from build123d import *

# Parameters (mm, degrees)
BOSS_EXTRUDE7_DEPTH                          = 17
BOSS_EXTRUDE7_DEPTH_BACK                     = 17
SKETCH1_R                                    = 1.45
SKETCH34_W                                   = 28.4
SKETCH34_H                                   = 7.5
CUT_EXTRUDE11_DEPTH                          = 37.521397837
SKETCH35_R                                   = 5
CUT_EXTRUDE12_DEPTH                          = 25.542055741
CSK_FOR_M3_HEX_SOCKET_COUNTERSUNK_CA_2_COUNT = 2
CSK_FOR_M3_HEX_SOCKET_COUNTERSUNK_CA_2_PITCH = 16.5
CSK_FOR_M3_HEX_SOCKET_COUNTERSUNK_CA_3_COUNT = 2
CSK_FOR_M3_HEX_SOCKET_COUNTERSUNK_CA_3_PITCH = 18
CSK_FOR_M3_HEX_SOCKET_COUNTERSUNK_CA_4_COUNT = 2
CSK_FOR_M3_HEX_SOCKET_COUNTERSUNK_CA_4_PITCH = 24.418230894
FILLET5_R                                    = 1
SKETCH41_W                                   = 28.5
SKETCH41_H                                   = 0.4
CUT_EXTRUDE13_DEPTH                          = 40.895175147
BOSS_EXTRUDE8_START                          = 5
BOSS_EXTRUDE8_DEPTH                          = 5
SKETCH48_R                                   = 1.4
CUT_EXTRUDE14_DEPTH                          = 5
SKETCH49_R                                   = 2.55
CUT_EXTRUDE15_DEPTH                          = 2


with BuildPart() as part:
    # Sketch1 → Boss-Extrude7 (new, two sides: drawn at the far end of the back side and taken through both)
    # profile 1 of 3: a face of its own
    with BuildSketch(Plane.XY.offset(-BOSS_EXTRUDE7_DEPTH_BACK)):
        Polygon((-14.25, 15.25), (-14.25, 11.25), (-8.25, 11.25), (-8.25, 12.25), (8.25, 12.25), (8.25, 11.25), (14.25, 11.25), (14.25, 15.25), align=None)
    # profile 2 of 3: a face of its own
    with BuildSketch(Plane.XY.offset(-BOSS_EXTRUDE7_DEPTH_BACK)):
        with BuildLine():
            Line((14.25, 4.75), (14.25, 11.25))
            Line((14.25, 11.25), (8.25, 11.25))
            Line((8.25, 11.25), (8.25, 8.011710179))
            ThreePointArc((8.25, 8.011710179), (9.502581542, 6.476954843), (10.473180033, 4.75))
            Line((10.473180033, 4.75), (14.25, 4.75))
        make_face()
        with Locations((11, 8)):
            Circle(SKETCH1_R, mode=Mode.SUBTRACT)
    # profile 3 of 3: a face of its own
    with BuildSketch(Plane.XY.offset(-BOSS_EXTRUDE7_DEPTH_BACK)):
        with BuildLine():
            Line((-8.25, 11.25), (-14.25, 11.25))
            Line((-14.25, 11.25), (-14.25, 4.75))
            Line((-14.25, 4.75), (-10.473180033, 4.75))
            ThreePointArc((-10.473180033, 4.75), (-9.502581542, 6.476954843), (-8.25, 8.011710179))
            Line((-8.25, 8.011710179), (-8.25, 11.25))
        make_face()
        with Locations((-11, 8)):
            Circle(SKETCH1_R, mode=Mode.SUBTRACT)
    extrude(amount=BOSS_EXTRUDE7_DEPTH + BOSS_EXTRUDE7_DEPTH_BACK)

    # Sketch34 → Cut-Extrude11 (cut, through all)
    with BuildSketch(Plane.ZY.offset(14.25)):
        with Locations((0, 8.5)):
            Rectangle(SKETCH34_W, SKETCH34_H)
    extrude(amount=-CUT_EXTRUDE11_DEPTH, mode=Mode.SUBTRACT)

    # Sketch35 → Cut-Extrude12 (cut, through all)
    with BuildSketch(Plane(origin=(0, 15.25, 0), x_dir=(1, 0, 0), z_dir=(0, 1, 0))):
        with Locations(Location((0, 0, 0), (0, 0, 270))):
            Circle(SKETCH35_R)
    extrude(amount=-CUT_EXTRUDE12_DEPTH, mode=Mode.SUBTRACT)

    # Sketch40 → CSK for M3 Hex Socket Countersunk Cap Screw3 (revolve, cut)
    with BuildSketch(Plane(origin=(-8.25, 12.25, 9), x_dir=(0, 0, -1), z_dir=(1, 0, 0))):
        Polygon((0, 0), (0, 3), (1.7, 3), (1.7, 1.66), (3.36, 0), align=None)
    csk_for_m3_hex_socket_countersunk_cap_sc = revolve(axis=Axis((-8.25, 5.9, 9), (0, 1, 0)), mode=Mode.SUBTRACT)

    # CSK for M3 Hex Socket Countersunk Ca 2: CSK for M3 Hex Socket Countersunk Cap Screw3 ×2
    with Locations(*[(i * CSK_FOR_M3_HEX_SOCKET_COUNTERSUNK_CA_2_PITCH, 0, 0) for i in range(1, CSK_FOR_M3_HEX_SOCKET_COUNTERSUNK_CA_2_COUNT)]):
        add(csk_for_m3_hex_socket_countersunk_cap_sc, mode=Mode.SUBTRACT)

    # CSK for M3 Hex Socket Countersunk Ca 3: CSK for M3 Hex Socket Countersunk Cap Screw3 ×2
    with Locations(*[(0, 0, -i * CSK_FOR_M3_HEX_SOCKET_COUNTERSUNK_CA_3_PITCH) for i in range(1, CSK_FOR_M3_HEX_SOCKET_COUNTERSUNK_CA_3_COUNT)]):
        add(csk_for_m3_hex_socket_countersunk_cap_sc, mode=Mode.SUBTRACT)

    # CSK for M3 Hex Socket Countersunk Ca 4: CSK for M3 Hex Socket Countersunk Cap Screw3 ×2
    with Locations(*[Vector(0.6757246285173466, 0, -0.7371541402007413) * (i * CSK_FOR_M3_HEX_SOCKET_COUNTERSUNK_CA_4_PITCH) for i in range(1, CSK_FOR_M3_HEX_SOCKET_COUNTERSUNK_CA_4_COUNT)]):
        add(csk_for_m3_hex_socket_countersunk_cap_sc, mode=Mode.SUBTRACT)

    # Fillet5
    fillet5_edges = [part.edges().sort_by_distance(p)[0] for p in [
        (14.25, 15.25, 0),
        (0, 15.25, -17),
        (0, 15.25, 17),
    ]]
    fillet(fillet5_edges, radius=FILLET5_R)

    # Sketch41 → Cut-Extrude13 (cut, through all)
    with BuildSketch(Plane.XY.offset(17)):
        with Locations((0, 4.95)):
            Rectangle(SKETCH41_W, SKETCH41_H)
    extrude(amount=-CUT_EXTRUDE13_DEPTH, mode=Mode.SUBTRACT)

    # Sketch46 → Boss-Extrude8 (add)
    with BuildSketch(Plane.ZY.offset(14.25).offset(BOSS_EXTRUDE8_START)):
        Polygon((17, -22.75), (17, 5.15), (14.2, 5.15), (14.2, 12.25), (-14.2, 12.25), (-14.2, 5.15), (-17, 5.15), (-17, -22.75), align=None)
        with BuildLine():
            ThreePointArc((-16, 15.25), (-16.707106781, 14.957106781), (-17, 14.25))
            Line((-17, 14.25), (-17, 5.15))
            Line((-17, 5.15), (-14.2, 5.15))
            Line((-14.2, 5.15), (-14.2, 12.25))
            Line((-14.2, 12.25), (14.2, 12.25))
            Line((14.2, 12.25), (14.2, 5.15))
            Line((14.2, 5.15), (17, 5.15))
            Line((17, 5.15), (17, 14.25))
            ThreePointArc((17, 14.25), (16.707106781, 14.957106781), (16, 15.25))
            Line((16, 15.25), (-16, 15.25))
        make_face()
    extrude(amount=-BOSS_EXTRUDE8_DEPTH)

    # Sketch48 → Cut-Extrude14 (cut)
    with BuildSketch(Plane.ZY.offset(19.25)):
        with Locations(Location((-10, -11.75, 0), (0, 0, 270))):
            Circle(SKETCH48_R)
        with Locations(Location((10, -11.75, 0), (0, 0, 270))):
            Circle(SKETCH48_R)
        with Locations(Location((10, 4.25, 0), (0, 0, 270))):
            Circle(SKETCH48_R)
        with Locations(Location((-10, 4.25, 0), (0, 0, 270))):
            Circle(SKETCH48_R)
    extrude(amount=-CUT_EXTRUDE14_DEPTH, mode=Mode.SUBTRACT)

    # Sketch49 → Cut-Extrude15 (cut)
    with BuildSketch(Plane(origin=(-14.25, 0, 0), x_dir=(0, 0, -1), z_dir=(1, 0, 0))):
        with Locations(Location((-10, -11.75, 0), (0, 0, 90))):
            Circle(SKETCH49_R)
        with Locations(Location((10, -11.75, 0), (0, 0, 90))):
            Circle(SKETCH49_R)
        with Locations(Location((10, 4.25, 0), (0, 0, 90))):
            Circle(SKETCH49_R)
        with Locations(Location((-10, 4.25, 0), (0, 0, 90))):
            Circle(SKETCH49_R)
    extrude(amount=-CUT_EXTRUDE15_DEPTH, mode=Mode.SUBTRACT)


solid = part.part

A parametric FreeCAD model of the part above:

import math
import FreeCAD as App
import Part
import Sketcher

V = App.Vector
Q = App.Units.Quantity


def edges_at(feature, points):
    """Names of the edges that pass closest to the given points."""
    edges = feature.Shape.Edges
    near = lambda p: min(range(len(edges)), key=lambda i: edges[i].distToShape(Part.Vertex(*p))[0])
    return sorted({f"Edge{near(p) + 1}" for p in points})


def add_polygon(sketch, points):
    """Adds a closed chain of lines whose ends are joined by coincident constraints."""
    first, n = sketch.GeometryCount, len(points)
    for a, b in zip(points, points[1:] + points[:1]):
        sketch.addGeometry(Part.LineSegment(App.Vector(*a, 0), App.Vector(*b, 0)), False)
    for i in range(n):
        sketch.addConstraint(Sketcher.Constraint("Coincident", first + i, 2, first + (i + 1) % n, 1))

doc = App.newDocument("Part")
params = doc.addObject("Spreadsheet::Sheet", "Params")
for row, (alias, value) in enumerate([
    ("sketch1_diameter", "2.9 mm"),
    ("sketch1_radius", "11.5 mm"),
    ("sketch1_width", "16.5 mm"),
    ("sketch1_width2", "28.5 mm"),
    ("sketch1_height", "10.5 mm"),
    ("pad1_length", "17 mm"),
    ("pad1_length2", "17 mm"),
    ("sketch2_width", "7.5 mm"),
    ("sketch2_height", "28.4 mm"),
    ("sketch3_diameter", "10 mm"),
    ("sketch4_width", "3 mm"),
    ("sketch4_height", "1.7 mm"),
    ("sketch4_width2", "1.34 mm"),
    ("groove_angle", "360 deg"),
    ("linearpattern_pitch", "16.5 mm"),
    ("linearpattern2_pitch", "18 mm"),
    ("linearpattern3_pitch", "24.418231 mm"),
    ("fillet_radius", "1 mm"),
    ("sketch5_width", "28.5 mm"),
    ("sketch5_height", "0.4 mm"),
    ("sketch6_radius", "1 mm"),
    ("sketch6_width", "37 mm"),
    ("sketch6_height", "32 mm"),
    ("pad2_length", "5 mm"),
    ("sketch7_diameter", "2.8 mm"),
    ("pocket4_length", "5 mm"),
    ("sketch8_diameter", "5.1 mm"),
    ("pocket5_length", "2 mm"),
], start=1):
    params.set(f"A{row}", alias)
    params.set(f"B{row}", "=" + value)
    params.setAlias(f"B{row}", alias)

body = doc.addObject("PartDesign::Body", "Body")

sketch1 = body.newObject("Sketcher::SketchObject", "Sketch")
sketch1.AttachmentSupport = (doc.getObject("XY_Plane"), [""])
sketch1.MapMode = "FlatFace"
sketch1.addGeometry([
    Part.LineSegment(V(-14.2, 15.2, 0), V(-14.2, 4.8, 0)),
    Part.LineSegment(V(-14.2, 4.8, 0), V(-10.5, 4.8, 0)),
    Part.ArcOfCircle(Part.Circle(V(0, 0, 0), V(0, 0, 1), 11.5), math.radians(135.84), math.radians(155.6)),
    Part.LineSegment(V(-8.2, 8, 0), V(-8.2, 12.2, 0)),
    Part.LineSegment(V(-8.2, 12.2, 0), V(8.2, 12.2, 0)),
    Part.LineSegment(V(8.2, 12.2, 0), V(8.2, 8, 0)),
    Part.ArcOfCircle(Part.Circle(V(0, 0, 0), V(0, 0, 1), 11.5), math.radians(24.4), math.radians(44.16)),
    Part.LineSegment(V(10.5, 4.8, 0), V(14.2, 4.8, 0)),
    Part.LineSegment(V(14.2, 4.8, 0), V(14.2, 15.2, 0)),
    Part.LineSegment(V(14.2, 15.2, 0), V(-14.2, 15.2, 0)),
    Part.Circle(V(-11, 8, 0), V(0, 0, 1), 1.4),
    Part.Circle(V(11, 8, 0), V(0, 0, 1), 1.4),
], False)
sketch1.addConstraint([
    Sketcher.Constraint("Coincident", 0, 2, 1, 1),
    Sketcher.Constraint("Coincident", 1, 2, 2, 2),
    Sketcher.Constraint("Coincident", 2, 1, 3, 1),
    Sketcher.Constraint("Coincident", 3, 2, 4, 1),
    Sketcher.Constraint("Coincident", 4, 2, 5, 1),
    Sketcher.Constraint("Coincident", 5, 2, 6, 2),
    Sketcher.Constraint("Coincident", 6, 1, 7, 1),
    Sketcher.Constraint("Coincident", 7, 2, 8, 1),
    Sketcher.Constraint("Coincident", 8, 2, 9, 1),
    Sketcher.Constraint("Coincident", 9, 2, 0, 1),
    Sketcher.Constraint("Vertical", 0),
    Sketcher.Constraint("Horizontal", 1),
    Sketcher.Constraint("Vertical", 3),
    Sketcher.Constraint("Horizontal", 4),
    Sketcher.Constraint("Vertical", 5),
    Sketcher.Constraint("Horizontal", 7),
    Sketcher.Constraint("Vertical", 8),
    Sketcher.Constraint("Horizontal", 9),
    Sketcher.Constraint("Coincident", 2, 3, -1, 1),
    Sketcher.Constraint("Coincident", 6, 3, -1, 1),
    Sketcher.Constraint("Equal", 2, 6),
    Sketcher.Constraint("Equal", 10, 11),
    Sketcher.Constraint("Symmetric", 10, 3, 11, 3, -2),
    Sketcher.Constraint("Symmetric", 0, 2, 7, 2, -2),
    Sketcher.Constraint("Horizontal", 2, 1, 5, 2),
    Sketcher.Constraint("Diameter", 10, 2.9),
    Sketcher.Constraint("Radius", 2, 11.5),
    Sketcher.Constraint("DistanceX", 4, 1, 4, 2, 16.5),
    Sketcher.Constraint("DistanceX", 9, 2, 9, 1, 28.5),
    Sketcher.Constraint("DistanceY", 0, 2, 0, 1, 10.5),
    Sketcher.Constraint("DistanceX", 10, 3, -1, 1, 11.0),
    Sketcher.Constraint("DistanceY", -1, 1, 10, 3, 8.0),
    Sketcher.Constraint("DistanceY", 4, 2, 8, 2, 3.0),
    Sketcher.Constraint("DistanceY", -1, 1, 0, 2, 4.75),
])
sketch1.setExpression("Constraints[25]", "Params.sketch1_diameter")
sketch1.setExpression("Constraints[26]", "Params.sketch1_radius")
sketch1.setExpression("Constraints[27]", "Params.sketch1_width")
sketch1.setExpression("Constraints[28]", "Params.sketch1_width2")
sketch1.setExpression("Constraints[29]", "Params.sketch1_height")
pad1 = body.newObject("PartDesign::Pad", "Pad")
pad1.Profile = sketch1
pad1.Type = "TwoLengths"
pad1.setExpression("Length", "Params.pad1_length")
pad1.setExpression("Length2", "Params.pad1_length2")

sketch2 = body.newObject("Sketcher::SketchObject", "Sketch001")
sketch2.AttachmentSupport = (doc.getObject("YZ_Plane"), [""])
sketch2.MapMode = "FlatFace"
sketch2.AttachmentOffset = App.Placement(V(0, 0, -14.25), App.Rotation())
add_polygon(sketch2, [(12, -14), (5, -14), (5, 14), (12, 14)])
sketch2.addConstraint([
    Sketcher.Constraint("Horizontal", 0),
    Sketcher.Constraint("Vertical", 1),
    Sketcher.Constraint("Horizontal", 2),
    Sketcher.Constraint("Vertical", 3),
    Sketcher.Constraint("DistanceX", 0, 2, 0, 1, 7.5),
    Sketcher.Constraint("DistanceY", 1, 1, 1, 2, 28.4),
    Sketcher.Constraint("DistanceY", 0, 2, -1, 1, 14.2),
    Sketcher.Constraint("DistanceX", -1, 1, 0, 2, 4.75),
])
sketch2.setExpression("Constraints[8]", "Params.sketch2_width")
sketch2.setExpression("Constraints[9]", "Params.sketch2_height")
pocket1 = body.newObject("PartDesign::Pocket", "Pocket")
pocket1.Profile = sketch2
pocket1.Type = "ThroughAll"
pocket1.Reversed = True

sketch3 = body.newObject("Sketcher::SketchObject", "Sketch002")
sketch3.AttachmentSupport = (doc.getObject("XZ_Plane"), [""])
sketch3.MapMode = "FlatFace"
sketch3.AttachmentOffset = App.Placement(V(0, 0, -15.25), App.Rotation())
sketch3.addGeometry(Part.Circle(V(0, 0, 0), V(0, 0, 1), 5), False)
sketch3.addConstraint([
    Sketcher.Constraint("Coincident", 0, 3, -1, 1),
    Sketcher.Constraint("Diameter", 0, 10.0),
])
sketch3.setExpression("Constraints[1]", "Params.sketch3_diameter")
pocket2 = body.newObject("PartDesign::Pocket", "Pocket001")
pocket2.Profile = sketch3
pocket2.Type = "ThroughAll"
pocket2.Reversed = True

sketch4 = body.newObject("Sketcher::SketchObject", "Sketch003")
sketch4.AttachmentSupport = (doc.getObject("YZ_Plane"), [""])
sketch4.MapMode = "FlatFace"
sketch4.AttachmentOffset = App.Placement(V(0, 0, -8.25), App.Rotation())
add_polygon(sketch4, [(15.2, 9), (12.2, 9), (12.2, 5.6), (13.9, 7.3), (15.2, 7.3)])
sketch4.addGeometry(Part.LineSegment(V(12.2, 9, 0), V(15.2, 9, 0)), True)
sketch4.addConstraint([
    Sketcher.Constraint("Horizontal", 0),
    Sketcher.Constraint("Vertical", 1),
    Sketcher.Constraint("Horizontal", 3),
    Sketcher.Constraint("Vertical", 4),
    Sketcher.Constraint("Horizontal", 5),
    Sketcher.Constraint("Coincident", 5, 1, 0, 2),
    Sketcher.Constraint("Vertical", 3, 2, 5, 2),
    Sketcher.Constraint("DistanceX", 0, 2, 0, 1, 3.0),
    Sketcher.Constraint("Angle", 2, Q("45 deg")),
    Sketcher.Constraint("DistanceY", 4, 1, 4, 2, 1.7),
    Sketcher.Constraint("DistanceY", -1, 1, 0, 2, 9.0),
    Sketcher.Constraint("DistanceX", 3, 1, 3, 2, 1.34),
    Sketcher.Constraint("DistanceX", -1, 1, 0, 2, 12.25),
])
sketch4.setExpression("Constraints[12]", "Params.sketch4_width")
sketch4.setExpression("Constraints[14]", "Params.sketch4_height")
sketch4.setExpression("Constraints[16]", "Params.sketch4_width2")
groove = body.newObject("PartDesign::Groove", "Groove")
groove.Profile = sketch4
groove.ReferenceAxis = (sketch4, ["Axis0"])
groove.setExpression("Angle", "Params.groove_angle")
doc.recompute()

linearpattern = body.newObject("PartDesign::LinearPattern", "LinearPattern")
linearpattern.Originals = [groove]
linearpattern.Direction = (doc.getObject("X_Axis"), [""])
linearpattern.Mode = "offset"
linearpattern.setExpression("Offset", "Params.linearpattern_pitch")
linearpattern.Occurrences = 2
body.Tip = linearpattern
doc.recompute()

linearpattern2 = body.newObject("PartDesign::LinearPattern", "LinearPattern001")
linearpattern2.Originals = [groove]
linearpattern2.Direction = (doc.getObject("Z_Axis"), [""])
linearpattern2.Mode = "offset"
linearpattern2.setExpression("Offset", "Params.linearpattern2_pitch")
linearpattern2.Occurrences = 2
linearpattern2.Reversed = True
body.Tip = linearpattern2
doc.recompute()

datumline = body.newObject("PartDesign::Line", "DatumLine")
datumline.Placement = App.Placement(V(0, 0, 0), App.Rotation(V(0, 0, 1), V(0.675724629, 0, -0.73715414)))
linearpattern3 = body.newObject("PartDesign::LinearPattern", "LinearPattern002")
linearpattern3.Originals = [groove]
linearpattern3.Direction = (datumline, [""])
linearpattern3.Mode = "offset"
linearpattern3.setExpression("Offset", "Params.linearpattern3_pitch")
linearpattern3.Occurrences = 2
body.Tip = linearpattern3
doc.recompute()

fillet = body.newObject("PartDesign::Fillet", "Fillet")
fillet.Base = (linearpattern3, edges_at(linearpattern3, [(14.25, 15.25, 0), (0, 15.25, -17), (0, 15.25, 17)]))
fillet.setExpression("Radius", "Params.fillet_radius")

sketch5 = body.newObject("Sketcher::SketchObject", "Sketch004")
sketch5.AttachmentSupport = (doc.getObject("XY_Plane"), [""])
sketch5.MapMode = "FlatFace"
sketch5.AttachmentOffset = App.Placement(V(0, 0, 17), App.Rotation())
add_polygon(sketch5, [(-14.25, 5.15), (-14.25, 4.75), (14.25, 4.75), (14.25, 5.15)])
sketch5.addConstraint([
    Sketcher.Constraint("Vertical", 0),
    Sketcher.Constraint("Horizontal", 1),
    Sketcher.Constraint("Vertical", 2),
    Sketcher.Constraint("Horizontal", 3),
    Sketcher.Constraint("DistanceX", 1, 1, 1, 2, 28.5),
    Sketcher.Constraint("DistanceY", 0, 2, 0, 1, 0.4),
    Sketcher.Constraint("DistanceX", 0, 2, -1, 1, 14.25),
    Sketcher.Constraint("DistanceY", -1, 1, 0, 2, 4.75),
])
sketch5.setExpression("Constraints[8]", "Params.sketch5_width")
sketch5.setExpression("Constraints[9]", "Params.sketch5_height")
pocket3 = body.newObject("PartDesign::Pocket", "Pocket002")
pocket3.Profile = sketch5
pocket3.Type = "ThroughAll"

sketch6 = body.newObject("Sketcher::SketchObject", "Sketch005")
sketch6.AttachmentSupport = (doc.getObject("YZ_Plane"), [""])
sketch6.MapMode = "FlatFace"
sketch6.AttachmentOffset = App.Placement(V(0, 0, -19.25), App.Rotation())
sketch6.addGeometry([
    Part.LineSegment(V(-22.8, 17, 0), V(14.2, 17, 0)),
    Part.ArcOfCircle(Part.Circle(V(14.2, 16, 0), V(0, 0, 1), 1), math.radians(0), math.radians(90)),
    Part.LineSegment(V(15.2, 16, 0), V(15.2, -16, 0)),
    Part.ArcOfCircle(Part.Circle(V(14.2, -16, 0), V(0, 0, 1), 1), math.radians(-90), math.radians(0)),
    Part.LineSegment(V(14.2, -17, 0), V(-22.8, -17, 0)),
    Part.LineSegment(V(-22.8, -17, 0), V(-22.8, 17, 0)),
], False)
sketch6.addConstraint([
    Sketcher.Constraint("Tangent", 0, 2, 1, 2),
    Sketcher.Constraint("Tangent", 1, 1, 2, 1),
    Sketcher.Constraint("Tangent", 2, 2, 3, 2),
    Sketcher.Constraint("Tangent", 3, 1, 4, 1),
    Sketcher.Constraint("Coincident", 4, 2, 5, 1),
    Sketcher.Constraint("Coincident", 5, 2, 0, 1),
    Sketcher.Constraint("Horizontal", 0),
    Sketcher.Constraint("Vertical", 2),
    Sketcher.Constraint("Horizontal", 4),
    Sketcher.Constraint("Vertical", 5),
    Sketcher.Constraint("Equal", 1, 3),
    Sketcher.Constraint("Radius", 1, 1.0),
    Sketcher.Constraint("DistanceX", 0, 1, 0, 2, 37.0),
    Sketcher.Constraint("DistanceY", 2, 2, 2, 1, 32.0),
    Sketcher.Constraint("DistanceY", -1, 1, 1, 3, 16.0),
    Sketcher.Constraint("DistanceX", -1, 1, 1, 3, 14.25),
])
sketch6.setExpression("Constraints[11]", "Params.sketch6_radius")
sketch6.setExpression("Constraints[12]", "Params.sketch6_width")
sketch6.setExpression("Constraints[13]", "Params.sketch6_height")
pad2 = body.newObject("PartDesign::Pad", "Pad001")
pad2.Profile = sketch6
pad2.setExpression("Length", "Params.pad2_length")

sketch7 = body.newObject("Sketcher::SketchObject", "Sketch006")
sketch7.AttachmentSupport = (doc.getObject("YZ_Plane"), [""])
sketch7.MapMode = "FlatFace"
sketch7.AttachmentOffset = App.Placement(V(0, 0, -19.25), App.Rotation())
sketch7.addGeometry([
    Part.Circle(V(-11.8, -10, 0), V(0, 0, 1), 1.4),
    Part.Circle(V(-11.8, 10, 0), V(0, 0, 1), 1.4),
    Part.Circle(V(4.2, 10, 0), V(0, 0, 1), 1.4),
    Part.Circle(V(4.2, -10, 0), V(0, 0, 1), 1.4),
], False)
sketch7.addConstraint([
    Sketcher.Constraint("Equal", 0, 1),
    Sketcher.Constraint("Equal", 1, 2),
    Sketcher.Constraint("Equal", 2, 3),
    Sketcher.Constraint("Symmetric", 0, 3, 1, 3, -1),
    Sketcher.Constraint("Symmetric", 2, 3, 3, 3, -1),
    Sketcher.Constraint("Horizontal", 1, 3, 2, 3),
    Sketcher.Constraint("Diameter", 0, 2.8),
    Sketcher.Constraint("DistanceY", 0, 3, -1, 1, 10.0),
    Sketcher.Constraint("DistanceX", 1, 3, 2, 3, 16.0),
    Sketcher.Constraint("DistanceX", 0, 3, -1, 1, 11.75),
])
sketch7.setExpression("Constraints[6]", "Params.sketch7_diameter")
pocket4 = body.newObject("PartDesign::Pocket", "Pocket003")
pocket4.Profile = sketch7
pocket4.setExpression("Length", "Params.pocket4_length")
pocket4.Reversed = True

sketch8 = body.newObject("Sketcher::SketchObject", "Sketch007")
sketch8.AttachmentSupport = (doc.getObject("YZ_Plane"), [""])
sketch8.MapMode = "FlatFace"
sketch8.AttachmentOffset = App.Placement(V(0, 0, -14.25), App.Rotation())
sketch8.addGeometry([
    Part.Circle(V(-11.8, 10, 0), V(0, 0, 1), 2.5),
    Part.Circle(V(-11.8, -10, 0), V(0, 0, 1), 2.5),
    Part.Circle(V(4.2, -10, 0), V(0, 0, 1), 2.5),
    Part.Circle(V(4.2, 10, 0), V(0, 0, 1), 2.5),
], False)
sketch8.addConstraint([
    Sketcher.Constraint("Equal", 0, 1),
    Sketcher.Constraint("Equal", 1, 2),
    Sketcher.Constraint("Equal", 2, 3),
    Sketcher.Constraint("Symmetric", 0, 3, 1, 3, -1),
    Sketcher.Constraint("Symmetric", 2, 3, 3, 3, -1),
    Sketcher.Constraint("Horizontal", 1, 3, 2, 3),
    Sketcher.Constraint("Diameter", 0, 5.1),
    Sketcher.Constraint("DistanceY", -1, 1, 0, 3, 10.0),
    Sketcher.Constraint("DistanceX", 1, 3, 2, 3, 16.0),
    Sketcher.Constraint("DistanceX", 0, 3, -1, 1, 11.75),
])
sketch8.setExpression("Constraints[6]", "Params.sketch8_diameter")
pocket5 = body.newObject("PartDesign::Pocket", "Pocket004")
pocket5.Profile = sketch8
pocket5.setExpression("Length", "Params.pocket5_length")

doc.recompute()
